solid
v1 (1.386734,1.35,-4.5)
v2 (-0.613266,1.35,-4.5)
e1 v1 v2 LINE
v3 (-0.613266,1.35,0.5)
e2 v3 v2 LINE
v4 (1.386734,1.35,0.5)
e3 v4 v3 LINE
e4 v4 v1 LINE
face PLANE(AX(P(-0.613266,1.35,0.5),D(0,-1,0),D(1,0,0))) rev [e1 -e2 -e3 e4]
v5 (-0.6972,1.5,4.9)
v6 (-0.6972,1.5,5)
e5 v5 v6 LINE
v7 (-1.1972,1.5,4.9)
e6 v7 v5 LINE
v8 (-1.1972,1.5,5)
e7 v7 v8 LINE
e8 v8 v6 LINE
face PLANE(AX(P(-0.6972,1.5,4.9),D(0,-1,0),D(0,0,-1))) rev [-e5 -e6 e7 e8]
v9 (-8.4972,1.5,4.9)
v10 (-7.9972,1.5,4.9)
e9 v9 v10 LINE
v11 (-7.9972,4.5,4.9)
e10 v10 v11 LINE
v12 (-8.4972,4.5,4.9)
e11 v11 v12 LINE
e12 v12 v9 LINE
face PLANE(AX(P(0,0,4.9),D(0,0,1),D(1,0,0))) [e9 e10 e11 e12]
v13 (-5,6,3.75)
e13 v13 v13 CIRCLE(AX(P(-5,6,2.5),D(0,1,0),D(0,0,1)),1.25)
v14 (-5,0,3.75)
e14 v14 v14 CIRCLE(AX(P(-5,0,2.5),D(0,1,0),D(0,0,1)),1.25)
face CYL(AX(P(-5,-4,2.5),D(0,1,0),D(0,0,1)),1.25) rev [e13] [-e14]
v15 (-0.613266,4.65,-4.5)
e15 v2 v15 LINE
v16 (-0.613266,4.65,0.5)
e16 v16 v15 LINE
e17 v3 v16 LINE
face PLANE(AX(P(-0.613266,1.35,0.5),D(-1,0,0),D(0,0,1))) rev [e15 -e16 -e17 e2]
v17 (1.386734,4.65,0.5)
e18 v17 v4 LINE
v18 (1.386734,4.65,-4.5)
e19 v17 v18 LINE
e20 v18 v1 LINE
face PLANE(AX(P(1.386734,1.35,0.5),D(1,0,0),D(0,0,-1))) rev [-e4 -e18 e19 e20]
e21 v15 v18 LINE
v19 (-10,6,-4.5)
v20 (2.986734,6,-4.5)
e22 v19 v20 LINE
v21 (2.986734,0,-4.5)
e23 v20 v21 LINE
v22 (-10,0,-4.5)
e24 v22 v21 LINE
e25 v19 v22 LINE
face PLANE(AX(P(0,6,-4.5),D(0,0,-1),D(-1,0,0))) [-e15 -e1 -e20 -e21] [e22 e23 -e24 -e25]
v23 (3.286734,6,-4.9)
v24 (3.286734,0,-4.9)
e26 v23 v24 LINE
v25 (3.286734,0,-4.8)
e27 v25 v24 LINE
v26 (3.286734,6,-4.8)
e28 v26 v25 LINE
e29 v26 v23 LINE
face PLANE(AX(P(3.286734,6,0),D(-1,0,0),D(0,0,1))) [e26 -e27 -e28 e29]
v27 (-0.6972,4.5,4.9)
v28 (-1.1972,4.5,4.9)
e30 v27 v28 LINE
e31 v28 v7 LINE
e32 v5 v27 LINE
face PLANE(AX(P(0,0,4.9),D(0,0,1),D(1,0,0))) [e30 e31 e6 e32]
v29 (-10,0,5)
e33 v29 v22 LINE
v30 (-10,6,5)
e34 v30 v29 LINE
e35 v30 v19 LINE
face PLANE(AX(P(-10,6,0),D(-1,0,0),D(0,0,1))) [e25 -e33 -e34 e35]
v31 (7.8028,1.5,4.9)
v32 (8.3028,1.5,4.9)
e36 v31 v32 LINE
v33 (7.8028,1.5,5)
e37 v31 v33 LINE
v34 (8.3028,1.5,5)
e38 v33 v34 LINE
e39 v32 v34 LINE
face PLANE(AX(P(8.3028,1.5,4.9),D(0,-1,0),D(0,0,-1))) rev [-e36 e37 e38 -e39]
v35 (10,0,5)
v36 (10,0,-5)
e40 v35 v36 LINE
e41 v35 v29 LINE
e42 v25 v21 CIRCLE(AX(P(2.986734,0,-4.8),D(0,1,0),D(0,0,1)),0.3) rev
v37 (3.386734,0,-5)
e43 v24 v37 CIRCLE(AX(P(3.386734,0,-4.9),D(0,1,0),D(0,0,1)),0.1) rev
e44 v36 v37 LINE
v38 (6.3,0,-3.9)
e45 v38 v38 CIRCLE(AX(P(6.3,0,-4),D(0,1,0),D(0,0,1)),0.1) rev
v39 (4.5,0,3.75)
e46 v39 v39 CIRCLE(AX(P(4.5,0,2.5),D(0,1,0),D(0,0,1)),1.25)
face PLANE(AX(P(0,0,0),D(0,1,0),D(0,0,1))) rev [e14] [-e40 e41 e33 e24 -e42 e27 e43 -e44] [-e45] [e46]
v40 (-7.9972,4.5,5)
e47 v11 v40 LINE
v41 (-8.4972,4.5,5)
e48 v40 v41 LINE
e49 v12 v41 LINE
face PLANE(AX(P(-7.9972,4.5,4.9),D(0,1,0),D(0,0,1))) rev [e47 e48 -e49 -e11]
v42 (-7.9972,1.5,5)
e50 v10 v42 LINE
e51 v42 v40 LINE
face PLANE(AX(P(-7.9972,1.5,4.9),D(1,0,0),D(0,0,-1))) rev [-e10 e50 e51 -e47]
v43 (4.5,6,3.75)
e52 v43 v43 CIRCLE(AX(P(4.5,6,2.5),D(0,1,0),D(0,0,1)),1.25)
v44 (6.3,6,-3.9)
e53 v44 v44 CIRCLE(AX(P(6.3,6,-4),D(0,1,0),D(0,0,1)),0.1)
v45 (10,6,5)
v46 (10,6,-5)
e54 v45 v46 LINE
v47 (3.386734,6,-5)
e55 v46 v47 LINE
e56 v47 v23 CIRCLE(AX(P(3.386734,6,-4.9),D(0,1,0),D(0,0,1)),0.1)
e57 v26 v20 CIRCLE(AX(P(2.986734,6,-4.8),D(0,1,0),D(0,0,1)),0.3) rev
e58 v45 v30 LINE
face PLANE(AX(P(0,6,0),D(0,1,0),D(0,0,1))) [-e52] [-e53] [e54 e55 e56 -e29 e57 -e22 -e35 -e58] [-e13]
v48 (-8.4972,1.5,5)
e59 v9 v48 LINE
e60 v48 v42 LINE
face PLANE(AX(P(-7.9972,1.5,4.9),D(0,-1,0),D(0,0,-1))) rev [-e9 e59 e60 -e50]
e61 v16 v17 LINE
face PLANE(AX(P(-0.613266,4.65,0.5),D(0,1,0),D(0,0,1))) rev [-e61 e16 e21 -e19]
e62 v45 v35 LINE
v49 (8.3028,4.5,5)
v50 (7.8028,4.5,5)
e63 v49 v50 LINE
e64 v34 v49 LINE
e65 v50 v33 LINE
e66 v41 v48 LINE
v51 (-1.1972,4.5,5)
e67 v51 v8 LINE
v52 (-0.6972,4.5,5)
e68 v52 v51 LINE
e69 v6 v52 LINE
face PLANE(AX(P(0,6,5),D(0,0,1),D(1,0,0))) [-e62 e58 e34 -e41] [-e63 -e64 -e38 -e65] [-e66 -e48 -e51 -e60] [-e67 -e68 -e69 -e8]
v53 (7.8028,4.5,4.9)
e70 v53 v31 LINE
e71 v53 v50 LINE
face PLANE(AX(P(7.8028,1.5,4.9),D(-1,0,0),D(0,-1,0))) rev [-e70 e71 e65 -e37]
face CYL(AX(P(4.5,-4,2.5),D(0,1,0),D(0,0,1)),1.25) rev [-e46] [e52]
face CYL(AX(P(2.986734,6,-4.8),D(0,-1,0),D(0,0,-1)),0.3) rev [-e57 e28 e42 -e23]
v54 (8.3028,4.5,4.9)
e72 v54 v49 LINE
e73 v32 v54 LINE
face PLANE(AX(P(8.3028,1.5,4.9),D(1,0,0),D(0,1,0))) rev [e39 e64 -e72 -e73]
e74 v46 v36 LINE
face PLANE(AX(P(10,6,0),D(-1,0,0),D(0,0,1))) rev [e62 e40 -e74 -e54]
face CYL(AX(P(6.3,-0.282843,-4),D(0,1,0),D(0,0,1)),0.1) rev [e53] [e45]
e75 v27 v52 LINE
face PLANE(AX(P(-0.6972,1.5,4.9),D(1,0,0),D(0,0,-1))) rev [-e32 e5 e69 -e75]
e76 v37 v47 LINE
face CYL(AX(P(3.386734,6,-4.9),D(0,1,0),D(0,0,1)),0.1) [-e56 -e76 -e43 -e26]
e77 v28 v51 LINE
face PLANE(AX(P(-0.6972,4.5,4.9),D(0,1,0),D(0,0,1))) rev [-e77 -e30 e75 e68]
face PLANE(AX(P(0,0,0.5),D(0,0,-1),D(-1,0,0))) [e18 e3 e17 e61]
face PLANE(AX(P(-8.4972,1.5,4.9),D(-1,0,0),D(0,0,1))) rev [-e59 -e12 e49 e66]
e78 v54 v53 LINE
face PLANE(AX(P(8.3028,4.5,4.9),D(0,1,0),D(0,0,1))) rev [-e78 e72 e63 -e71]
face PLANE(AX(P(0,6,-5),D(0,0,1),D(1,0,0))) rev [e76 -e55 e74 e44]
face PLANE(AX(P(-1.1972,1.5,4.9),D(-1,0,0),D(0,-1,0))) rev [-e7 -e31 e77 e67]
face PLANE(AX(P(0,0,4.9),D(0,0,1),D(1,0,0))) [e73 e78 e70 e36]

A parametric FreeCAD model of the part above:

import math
import FreeCAD as App
import Part
import Sketcher
from FreeCAD import Vector
Q = App.Units.Quantity


def edges_at(feature, points):
    """Names of the edges that pass closest to the given points."""
    edges = feature.Shape.Edges
    near = lambda p: min(range(len(edges)), key=lambda i: edges[i].distToShape(Part.Vertex(*p))[0])
    return sorted({f"Edge{near(p) + 1}" for p in points})

doc = App.newDocument("Part")
body = doc.addObject("PartDesign::Body", "Body")

sketch1 = body.newObject("Sketcher::SketchObject", "Sketch")
sketch1.AttachmentSupport = (doc.getObject("XZ_Plane"), [""])
sketch1.MapMode = "FlatFace"
sketch1.addGeometry(Part.LineSegment(Vector(2.99, -4.5, 0), Vector(-10, -4.5, 0)), False)
sketch1.addGeometry(Part.LineSegment(Vector(-10, -4.5, 0), Vector(-10, 5, 0)), False)
sketch1.addGeometry(Part.LineSegment(Vector(-10, 5, 0), Vector(10, 5, 0)), False)
sketch1.addGeometry(Part.LineSegment(Vector(10, 5, 0), Vector(10, -5, 0)), False)
sketch1.addGeometry(Part.LineSegment(Vector(10, -5, 0), Vector(3.29, -5, 0)), False)
sketch1.addGeometry(Part.LineSegment(Vector(3.29, -5, 0), Vector(3.29, -4.8, 0)), False)
sketch1.addGeometry(Part.ArcOfCircle(Part.Circle(Vector(2.99, -4.8, 0), Vector(0, 0, 1), 0.3), math.radians(0), math.radians(90)), False)
sketch1.addConstraint(Sketcher.Constraint("Coincident", 0, 2, 1, 1))
sketch1.addConstraint(Sketcher.Constraint("Coincident", 1, 2, 2, 1))
sketch1.addConstraint(Sketcher.Constraint("Coincident", 2, 2, 3, 1))
sketch1.addConstraint(Sketcher.Constraint("Coincident", 3, 2, 4, 1))
sketch1.addConstraint(Sketcher.Constraint("Coincident", 4, 2, 5, 1))
sketch1.addConstraint(Sketcher.Constraint("Tangent", 5, 2, 6, 1))
sketch1.addConstraint(Sketcher.Constraint("Tangent", 6, 2, 0, 1))
sketch1.addConstraint(Sketcher.Constraint("Horizontal", 0))
sketch1.addConstraint(Sketcher.Constraint("Vertical", 1))
sketch1.addConstraint(Sketcher.Constraint("Horizontal", 2))
sketch1.addConstraint(Sketcher.Constraint("Vertical", 3))
sketch1.addConstraint(Sketcher.Constraint("Horizontal", 4))
sketch1.addConstraint(Sketcher.Constraint("Vertical", 5))
sketch1.addConstraint(Sketcher.Constraint("Symmetric", 1, 2, 3, 2, -1, 1))
sketch1.addConstraint(Sketcher.Constraint("Radius", 6, Q("0.3 mm")))
sketch1.addConstraint(Sketcher.Constraint("DistanceX", 2, 1, 2, 2, Q("20 mm")))
sketch1.addConstraint(Sketcher.Constraint("DistanceY", 3, 2, 3, 1, Q("10 mm")))
sketch1.addConstraint(Sketcher.Constraint("DistanceY", 1, 1, 1, 2, Q("9.5 mm")))
sketch1.addConstraint(Sketcher.Constraint("DistanceX", 0, 2, 0, 1, Q("12.986734 mm")))
pad1 = body.newObject("PartDesign::Pad", "Pad")
pad1.Profile = sketch1
pad1.Length = 6
pad1.Reversed = True

sketch2 = body.newObject("Sketcher::SketchObject", "Sketch001")
sketch2.AttachmentSupport = (doc.getObject("XZ_Plane"), [""])
sketch2.MapMode = "FlatFace"
sketch2.AttachmentOffset = App.Placement(Vector(0, 0, -6), App.Rotation())
sketch2.addGeometry(Part.Circle(Vector(-5, 2.5, 0), Vector(0, 0, 1), 1.2), False)
sketch2.addGeometry(Part.Circle(Vector(4.5, 2.5, 0), Vector(0, 0, 1), 1.2), False)
sketch2.addConstraint(Sketcher.Constraint("Equal", 0, 1))
sketch2.addConstraint(Sketcher.Constraint("Horizontal", 0, 3, 1, 3))
sketch2.addConstraint(Sketcher.Constraint("Diameter", 0, Q("2.5 mm")))
sketch2.addConstraint(Sketcher.Constraint("DistanceX", 0, 3, -1, 1, Q("5 mm")))
sketch2.addConstraint(Sketcher.Constraint("DistanceY", -1, 1, 0, 3, Q("2.5 mm")))
sketch2.addConstraint(Sketcher.Constraint("DistanceX", -1, 1, 1, 3, Q("4.5 mm")))
pocket1 = body.newObject("PartDesign::Pocket", "Pocket")
pocket1.Profile = sketch2
pocket1.Length = 10
pocket1.Reversed = True
doc.recompute()

fillet = body.newObject("PartDesign::Fillet", "Fillet")
fillet.Base = (pocket1, edges_at(pocket1, [(3.287, 3, -5)]))
fillet.Radius = 0.1

sketch3 = body.newObject("Sketcher::SketchObject", "Sketch002")
sketch3.AttachmentSupport = (doc.getObject("XY_Plane"), [""])
sketch3.MapMode = "FlatFace"
sketch3.AttachmentOffset = App.Placement(Vector(0, 0, -4.5), App.Rotation())
sketch3.addGeometry(Part.LineSegment(Vector(1.4, 4.7, 0), Vector(1.4, 1.4, 0)), False)
sketch3.addGeometry(Part.LineSegment(Vector(1.4, 1.4, 0), Vector(-0.6, 1.4, 0)), False)
sketch3.addGeometry(Part.LineSegment(Vector(-0.6, 1.4, 0), Vector(-0.6, 4.7, 0)), False)
sketch3.addGeometry(Part.LineSegment(Vector(-0.6, 4.7, 0), Vector(1.4, 4.7, 0)), False)
sketch3.addConstraint(Sketcher.Constraint("Coincident", 0, 2, 1, 1))
sketch3.addConstraint(Sketcher.Constraint("Coincident", 1, 2, 2, 1))
sketch3.addConstraint(Sketcher.Constraint("Coincident", 2, 2, 3, 1))
sketch3.addConstraint(Sketcher.Constraint("Coincident", 3, 2, 0, 1))
sketch3.addConstraint(Sketcher.Constraint("Vertical", 0))
sketch3.addConstraint(Sketcher.Constraint("Horizontal", 1))
sketch3.addConstraint(Sketcher.Constraint("Vertical", 2))
sketch3.addConstraint(Sketcher.Constraint("Horizontal", 3))
sketch3.addConstraint(Sketcher.Constraint("DistanceX", 1, 2, 1, 1, Q("2 mm")))
sketch3.addConstraint(Sketcher.Constraint("DistanceY", 0, 2, 0, 1, Q("3.3 mm")))
sketch3.addConstraint(Sketcher.Constraint("DistanceY", -1, 1, 0, 2, Q("1.35 mm")))
sketch3.addConstraint(Sketcher.Constraint("DistanceX", -1, 1, 0, 2, Q("1.386734 mm")))
pocket2 = body.newObject("PartDesign::Pocket", "Pocket001")
pocket2.Profile = sketch3
pocket2.Length = 5
pocket2.Reversed = True

sketch4 = body.newObject("Sketcher::SketchObject", "Sketch003")
sketch4.AttachmentSupport = (doc.getObject("XZ_Plane"), [""])
sketch4.MapMode = "FlatFace"
sketch4.AttachmentOffset = App.Placement(Vector(0, 0, -6), App.Rotation())
sketch4.addGeometry(Part.Circle(Vector(6.3, -4, 0), Vector(0, 0, 1), 0.1), False)
sketch4.addConstraint(Sketcher.Constraint("Diameter", 0, Q("0.2 mm")))
sketch4.addConstraint(Sketcher.Constraint("DistanceY", 0, 3, -1, 1, Q("4 mm")))
sketch4.addConstraint(Sketcher.Constraint("DistanceX", -1, 1, 0, 3, Q("6.3 mm")))
pocket3 = body.newObject("PartDesign::Pocket", "Pocket002")
pocket3.Profile = sketch4
pocket3.Length = 6
pocket3.Reversed = True

sketch5 = body.newObject("Sketcher::SketchObject", "Sketch004")
sketch5.AttachmentSupport = (doc.getObject("XY_Plane"), [""])
sketch5.MapMode = "FlatFace"
sketch5.AttachmentOffset = App.Placement(Vector(0, 0, 5), App.Rotation())
sketch5.addGeometry(Part.LineSegment(Vector(-8.5, 4.5, 0), Vector(-8.5, 1.5, 0)), False)
sketch5.addGeometry(Part.LineSegment(Vector(-8.5, 1.5, 0), Vector(-8, 1.5, 0)), False)
sketch5.addGeometry(Part.LineSegment(Vector(-8, 1.5, 0), Vector(-8, 4.5, 0)), False)
sketch5.addGeometry(Part.LineSegment(Vector(-8, 4.5, 0), Vector(-8.5, 4.5, 0)), False)
sketch5.addGeometry(Part.LineSegment(Vector(-1.2, 4.5, 0), Vector(-1.2, 1.5, 0)), False)
sketch5.addGeometry(Part.LineSegment(Vector(-1.2, 1.5, 0), Vector(-0.7, 1.5, 0)), False)
sketch5.addGeometry(Part.LineSegment(Vector(-0.7, 1.5, 0), Vector(-0.7, 4.5, 0)), False)
sketch5.addGeometry(Part.LineSegment(Vector(-0.7, 4.5, 0), Vector(-1.2, 4.5, 0)), False)
sketch5.addGeometry(Part.LineSegment(Vector(7.8, 4.5, 0), Vector(7.8, 1.5, 0)), False)
sketch5.addGeometry(Part.LineSegment(Vector(7.8, 1.5, 0), Vector(8.3, 1.5, 0)), False)
sketch5.addGeometry(Part.LineSegment(Vector(8.3, 1.5, 0), Vector(8.3, 4.5, 0)), False)
sketch5.addGeometry(Part.LineSegment(Vector(8.3, 4.5, 0), Vector(7.8, 4.5, 0)), False)
sketch5.addConstraint(Sketcher.Constraint("Coincident", 0, 2, 1, 1))
sketch5.addConstraint(Sketcher.Constraint("Coincident", 1, 2, 2, 1))
sketch5.addConstraint(Sketcher.Constraint("Coincident", 2, 2, 3, 1))
sketch5.addConstraint(Sketcher.Constraint("Coincident", 3, 2, 0, 1))
sketch5.addConstraint(Sketcher.Constraint("Coincident", 4, 2, 5, 1))
sketch5.addConstraint(Sketcher.Constraint("Coincident", 5, 2, 6, 1))
sketch5.addConstraint(Sketcher.Constraint("Coincident", 6, 2, 7, 1))
sketch5.addConstraint(Sketcher.Constraint("Coincident", 7, 2, 4, 1))
sketch5.addConstraint(Sketcher.Constraint("Coincident", 8, 2, 9, 1))
sketch5.addConstraint(Sketcher.Constraint("Coincident", 9, 2, 10, 1))
sketch5.addConstraint(Sketcher.Constraint("Coincident", 10, 2, 11, 1))
sketch5.addConstraint(Sketcher.Constraint("Coincident", 11, 2, 8, 1))
sketch5.addConstraint(Sketcher.Constraint("Vertical", 0))
sketch5.addConstraint(Sketcher.Constraint("Horizontal", 1))
sketch5.addConstraint(Sketcher.Constraint("Vertical", 2))
sketch5.addConstraint(Sketcher.Constraint("Horizontal", 3))
sketch5.addConstraint(Sketcher.Constraint("Vertical", 4))
sketch5.addConstraint(Sketcher.Constraint("Horizontal", 5))
sketch5.addConstraint(Sketcher.Constraint("Vertical", 6))
sketch5.addConstraint(Sketcher.Constraint("Horizontal", 7))
sketch5.addConstraint(Sketcher.Constraint("Vertical", 8))
sketch5.addConstraint(Sketcher.Constraint("Horizontal", 9))
sketch5.addConstraint(Sketcher.Constraint("Vertical", 10))
sketch5.addConstraint(Sketcher.Constraint("Horizontal", 11))
sketch5.addConstraint(Sketcher.Constraint("Horizontal", 1, 2, 4, 2))
sketch5.addConstraint(Sketcher.Constraint("Horizontal", 3, 2, 6, 2))
sketch5.addConstraint(Sketcher.Constraint("Horizontal", 5, 2, 8, 2))
sketch5.addConstraint(Sketcher.Constraint("Horizontal", 7, 2, 10, 2))
sketch5.addConstraint(Sketcher.Constraint("Equal", 3, 5))
sketch5.addConstraint(Sketcher.Constraint("Equal", 7, 9))
sketch5.addConstraint(Sketcher.Constraint("DistanceY", 0, 2, 0, 1, Q("3 mm")))
sketch5.addConstraint(Sketcher.Constraint("DistanceX", 1, 1, 1, 2, Q("0.5 mm")))
sketch5.addConstraint(Sketcher.Constraint("DistanceX", 4, 2, 8, 2, Q("9 mm")))
sketch5.addConstraint(Sketcher.Constraint("DistanceY", -1, 1, 0, 2, Q("1.5 mm")))
sketch5.addConstraint(Sketcher.Constraint("DistanceX", 1, 2, 4, 2, Q("6.8 mm")))
sketch5.addConstraint(Sketcher.Constraint("DistanceX", 0, 2, -1, 1, Q("8.4972 mm")))
pocket4 = body.newObject("PartDesign::Pocket", "Pocket003")
pocket4.Profile = sketch5
pocket4.Length = 0.1

doc.recompute()
